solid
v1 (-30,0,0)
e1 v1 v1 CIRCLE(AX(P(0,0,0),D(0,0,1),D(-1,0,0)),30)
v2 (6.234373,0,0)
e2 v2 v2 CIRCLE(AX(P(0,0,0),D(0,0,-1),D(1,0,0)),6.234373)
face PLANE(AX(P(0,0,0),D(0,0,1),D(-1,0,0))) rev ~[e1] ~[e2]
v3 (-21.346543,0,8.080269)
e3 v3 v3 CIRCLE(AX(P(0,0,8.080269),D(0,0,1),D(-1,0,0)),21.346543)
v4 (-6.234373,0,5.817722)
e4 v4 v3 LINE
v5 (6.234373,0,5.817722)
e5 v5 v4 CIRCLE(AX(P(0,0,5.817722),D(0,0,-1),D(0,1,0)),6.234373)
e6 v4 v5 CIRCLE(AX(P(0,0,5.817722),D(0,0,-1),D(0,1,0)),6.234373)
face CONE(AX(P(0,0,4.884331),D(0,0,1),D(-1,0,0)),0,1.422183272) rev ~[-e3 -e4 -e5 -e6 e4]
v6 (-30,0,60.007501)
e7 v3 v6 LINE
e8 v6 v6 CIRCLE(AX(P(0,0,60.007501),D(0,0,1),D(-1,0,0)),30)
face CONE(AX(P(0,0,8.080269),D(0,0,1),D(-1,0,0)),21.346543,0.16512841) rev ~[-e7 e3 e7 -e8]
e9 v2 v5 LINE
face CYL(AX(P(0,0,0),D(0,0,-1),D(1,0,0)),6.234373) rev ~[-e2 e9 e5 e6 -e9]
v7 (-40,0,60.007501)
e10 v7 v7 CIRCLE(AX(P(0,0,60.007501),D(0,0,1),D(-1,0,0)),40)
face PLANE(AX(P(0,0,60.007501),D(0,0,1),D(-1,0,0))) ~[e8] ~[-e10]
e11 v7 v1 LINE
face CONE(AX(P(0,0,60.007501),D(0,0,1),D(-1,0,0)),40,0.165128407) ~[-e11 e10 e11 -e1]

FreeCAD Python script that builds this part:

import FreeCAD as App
import Part
import Sketcher
from FreeCAD import Vector
Q = App.Units.Quantity

doc = App.newDocument("Part")
params = doc.addObject("Spreadsheet::Sheet", "Params")
for row, (alias, value) in enumerate([
    ("sketch1_width", "30 mm"),
    ("sketch1_width2", "10 mm"),
    ("revolution_angle", "360 deg"),
], start=1):
    params.set(f"A{row}", alias)
    params.set(f"B{row}", "=" + value)
    params.setAlias(f"B{row}", alias)

body = doc.addObject("PartDesign::Body", "Body")

# Sketch on XZ plane
sketch1 = body.newObject("Sketcher::SketchObject", "Sketch")
sketch1.AttachmentSupport = (doc.getObject("XZ_Plane"), [""])
sketch1.MapMode = "FlatFace"
sketch1.addGeometry([
    Part.LineSegment(Vector(-30, 0, 0), Vector(0, 0, 0)),  # 0
    Part.LineSegment(Vector(0, 0, 0), Vector(0, 4.9, 0)),  # 1
    Part.LineSegment(Vector(0, 4.9, 0), Vector(-21.3, 8.1, 0)),  # 2
    Part.LineSegment(Vector(-21.3, 8.1, 0), Vector(-30, 60, 0)),  # 3
    Part.LineSegment(Vector(-30, 60, 0), Vector(-40, 60, 0)),  # 4
    Part.LineSegment(Vector(-40, 60, 0), Vector(-30, 0, 0)),  # 5
], False)
sketch1.addConstraint([
    Sketcher.Constraint("Coincident", 0, 2, 1, 1),
    Sketcher.Constraint("Coincident", 1, 2, 2, 1),
    Sketcher.Constraint("Coincident", 2, 2, 3, 1),
    Sketcher.Constraint("Coincident", 3, 2, 4, 1),
    Sketcher.Constraint("Coincident", 4, 2, 5, 1),
    Sketcher.Constraint("Coincident", 5, 2, 0, 1),
    Sketcher.Constraint("Horizontal", 0),
    Sketcher.Constraint("Vertical", 1),
    Sketcher.Constraint("Horizontal", 4),
    Sketcher.Constraint("Coincident", 0, 2, -1, 1),
    Sketcher.Constraint("Parallel", 3, 5),
    Sketcher.Constraint("Vertical", 3, 2, 5, 2),
    Sketcher.Constraint("DistanceX", 0, 1, 0, 2, Q("30 mm")),
    Sketcher.Constraint("DistanceX", 4, 2, 4, 1, Q("10 mm")),
    Sketcher.Constraint("DistanceY", 1, 1, 1, 2, Q("4.884331 mm")),
    Sketcher.Constraint("DistanceY", -1, 1, 3, 2, Q("60.007501 mm")),
    Sketcher.Constraint("Distance", 2, Q("21.58446 mm")),
])
sketch1.setExpression("Constraints[12]", "Params.sketch1_width")
sketch1.setExpression("Constraints[13]", "Params.sketch1_width2")
revolution = body.newObject("PartDesign::Revolution", "Revolution")
revolution.Profile = sketch1
revolution.ReferenceAxis = (sketch1, ["V_Axis"])
revolution.setExpression("Angle", "Params.revolution_angle")

# Sketch on XY plane
sketch2 = body.newObject("Sketcher::SketchObject", "Sketch001")
sketch2.AttachmentSupport = (doc.getObject("XY_Plane"), [""])
sketch2.MapMode = "FlatFace"
sketch2.addGeometry(Part.Circle(Vector(0, 0, 0), Vector(0, 0, 1), 6), False)
sketch2.addConstraint([
    Sketcher.Constraint("Coincident", 0, 3, -1, 1),
    Sketcher.Constraint("Diameter", 0, Q("12.468746 mm")),
])
pocket1 = body.newObject("PartDesign::Pocket", "Pocket")
pocket1.Profile = sketch2
pocket1.Type = "ThroughAll"
pocket1.Reversed = True

doc.recompute()
